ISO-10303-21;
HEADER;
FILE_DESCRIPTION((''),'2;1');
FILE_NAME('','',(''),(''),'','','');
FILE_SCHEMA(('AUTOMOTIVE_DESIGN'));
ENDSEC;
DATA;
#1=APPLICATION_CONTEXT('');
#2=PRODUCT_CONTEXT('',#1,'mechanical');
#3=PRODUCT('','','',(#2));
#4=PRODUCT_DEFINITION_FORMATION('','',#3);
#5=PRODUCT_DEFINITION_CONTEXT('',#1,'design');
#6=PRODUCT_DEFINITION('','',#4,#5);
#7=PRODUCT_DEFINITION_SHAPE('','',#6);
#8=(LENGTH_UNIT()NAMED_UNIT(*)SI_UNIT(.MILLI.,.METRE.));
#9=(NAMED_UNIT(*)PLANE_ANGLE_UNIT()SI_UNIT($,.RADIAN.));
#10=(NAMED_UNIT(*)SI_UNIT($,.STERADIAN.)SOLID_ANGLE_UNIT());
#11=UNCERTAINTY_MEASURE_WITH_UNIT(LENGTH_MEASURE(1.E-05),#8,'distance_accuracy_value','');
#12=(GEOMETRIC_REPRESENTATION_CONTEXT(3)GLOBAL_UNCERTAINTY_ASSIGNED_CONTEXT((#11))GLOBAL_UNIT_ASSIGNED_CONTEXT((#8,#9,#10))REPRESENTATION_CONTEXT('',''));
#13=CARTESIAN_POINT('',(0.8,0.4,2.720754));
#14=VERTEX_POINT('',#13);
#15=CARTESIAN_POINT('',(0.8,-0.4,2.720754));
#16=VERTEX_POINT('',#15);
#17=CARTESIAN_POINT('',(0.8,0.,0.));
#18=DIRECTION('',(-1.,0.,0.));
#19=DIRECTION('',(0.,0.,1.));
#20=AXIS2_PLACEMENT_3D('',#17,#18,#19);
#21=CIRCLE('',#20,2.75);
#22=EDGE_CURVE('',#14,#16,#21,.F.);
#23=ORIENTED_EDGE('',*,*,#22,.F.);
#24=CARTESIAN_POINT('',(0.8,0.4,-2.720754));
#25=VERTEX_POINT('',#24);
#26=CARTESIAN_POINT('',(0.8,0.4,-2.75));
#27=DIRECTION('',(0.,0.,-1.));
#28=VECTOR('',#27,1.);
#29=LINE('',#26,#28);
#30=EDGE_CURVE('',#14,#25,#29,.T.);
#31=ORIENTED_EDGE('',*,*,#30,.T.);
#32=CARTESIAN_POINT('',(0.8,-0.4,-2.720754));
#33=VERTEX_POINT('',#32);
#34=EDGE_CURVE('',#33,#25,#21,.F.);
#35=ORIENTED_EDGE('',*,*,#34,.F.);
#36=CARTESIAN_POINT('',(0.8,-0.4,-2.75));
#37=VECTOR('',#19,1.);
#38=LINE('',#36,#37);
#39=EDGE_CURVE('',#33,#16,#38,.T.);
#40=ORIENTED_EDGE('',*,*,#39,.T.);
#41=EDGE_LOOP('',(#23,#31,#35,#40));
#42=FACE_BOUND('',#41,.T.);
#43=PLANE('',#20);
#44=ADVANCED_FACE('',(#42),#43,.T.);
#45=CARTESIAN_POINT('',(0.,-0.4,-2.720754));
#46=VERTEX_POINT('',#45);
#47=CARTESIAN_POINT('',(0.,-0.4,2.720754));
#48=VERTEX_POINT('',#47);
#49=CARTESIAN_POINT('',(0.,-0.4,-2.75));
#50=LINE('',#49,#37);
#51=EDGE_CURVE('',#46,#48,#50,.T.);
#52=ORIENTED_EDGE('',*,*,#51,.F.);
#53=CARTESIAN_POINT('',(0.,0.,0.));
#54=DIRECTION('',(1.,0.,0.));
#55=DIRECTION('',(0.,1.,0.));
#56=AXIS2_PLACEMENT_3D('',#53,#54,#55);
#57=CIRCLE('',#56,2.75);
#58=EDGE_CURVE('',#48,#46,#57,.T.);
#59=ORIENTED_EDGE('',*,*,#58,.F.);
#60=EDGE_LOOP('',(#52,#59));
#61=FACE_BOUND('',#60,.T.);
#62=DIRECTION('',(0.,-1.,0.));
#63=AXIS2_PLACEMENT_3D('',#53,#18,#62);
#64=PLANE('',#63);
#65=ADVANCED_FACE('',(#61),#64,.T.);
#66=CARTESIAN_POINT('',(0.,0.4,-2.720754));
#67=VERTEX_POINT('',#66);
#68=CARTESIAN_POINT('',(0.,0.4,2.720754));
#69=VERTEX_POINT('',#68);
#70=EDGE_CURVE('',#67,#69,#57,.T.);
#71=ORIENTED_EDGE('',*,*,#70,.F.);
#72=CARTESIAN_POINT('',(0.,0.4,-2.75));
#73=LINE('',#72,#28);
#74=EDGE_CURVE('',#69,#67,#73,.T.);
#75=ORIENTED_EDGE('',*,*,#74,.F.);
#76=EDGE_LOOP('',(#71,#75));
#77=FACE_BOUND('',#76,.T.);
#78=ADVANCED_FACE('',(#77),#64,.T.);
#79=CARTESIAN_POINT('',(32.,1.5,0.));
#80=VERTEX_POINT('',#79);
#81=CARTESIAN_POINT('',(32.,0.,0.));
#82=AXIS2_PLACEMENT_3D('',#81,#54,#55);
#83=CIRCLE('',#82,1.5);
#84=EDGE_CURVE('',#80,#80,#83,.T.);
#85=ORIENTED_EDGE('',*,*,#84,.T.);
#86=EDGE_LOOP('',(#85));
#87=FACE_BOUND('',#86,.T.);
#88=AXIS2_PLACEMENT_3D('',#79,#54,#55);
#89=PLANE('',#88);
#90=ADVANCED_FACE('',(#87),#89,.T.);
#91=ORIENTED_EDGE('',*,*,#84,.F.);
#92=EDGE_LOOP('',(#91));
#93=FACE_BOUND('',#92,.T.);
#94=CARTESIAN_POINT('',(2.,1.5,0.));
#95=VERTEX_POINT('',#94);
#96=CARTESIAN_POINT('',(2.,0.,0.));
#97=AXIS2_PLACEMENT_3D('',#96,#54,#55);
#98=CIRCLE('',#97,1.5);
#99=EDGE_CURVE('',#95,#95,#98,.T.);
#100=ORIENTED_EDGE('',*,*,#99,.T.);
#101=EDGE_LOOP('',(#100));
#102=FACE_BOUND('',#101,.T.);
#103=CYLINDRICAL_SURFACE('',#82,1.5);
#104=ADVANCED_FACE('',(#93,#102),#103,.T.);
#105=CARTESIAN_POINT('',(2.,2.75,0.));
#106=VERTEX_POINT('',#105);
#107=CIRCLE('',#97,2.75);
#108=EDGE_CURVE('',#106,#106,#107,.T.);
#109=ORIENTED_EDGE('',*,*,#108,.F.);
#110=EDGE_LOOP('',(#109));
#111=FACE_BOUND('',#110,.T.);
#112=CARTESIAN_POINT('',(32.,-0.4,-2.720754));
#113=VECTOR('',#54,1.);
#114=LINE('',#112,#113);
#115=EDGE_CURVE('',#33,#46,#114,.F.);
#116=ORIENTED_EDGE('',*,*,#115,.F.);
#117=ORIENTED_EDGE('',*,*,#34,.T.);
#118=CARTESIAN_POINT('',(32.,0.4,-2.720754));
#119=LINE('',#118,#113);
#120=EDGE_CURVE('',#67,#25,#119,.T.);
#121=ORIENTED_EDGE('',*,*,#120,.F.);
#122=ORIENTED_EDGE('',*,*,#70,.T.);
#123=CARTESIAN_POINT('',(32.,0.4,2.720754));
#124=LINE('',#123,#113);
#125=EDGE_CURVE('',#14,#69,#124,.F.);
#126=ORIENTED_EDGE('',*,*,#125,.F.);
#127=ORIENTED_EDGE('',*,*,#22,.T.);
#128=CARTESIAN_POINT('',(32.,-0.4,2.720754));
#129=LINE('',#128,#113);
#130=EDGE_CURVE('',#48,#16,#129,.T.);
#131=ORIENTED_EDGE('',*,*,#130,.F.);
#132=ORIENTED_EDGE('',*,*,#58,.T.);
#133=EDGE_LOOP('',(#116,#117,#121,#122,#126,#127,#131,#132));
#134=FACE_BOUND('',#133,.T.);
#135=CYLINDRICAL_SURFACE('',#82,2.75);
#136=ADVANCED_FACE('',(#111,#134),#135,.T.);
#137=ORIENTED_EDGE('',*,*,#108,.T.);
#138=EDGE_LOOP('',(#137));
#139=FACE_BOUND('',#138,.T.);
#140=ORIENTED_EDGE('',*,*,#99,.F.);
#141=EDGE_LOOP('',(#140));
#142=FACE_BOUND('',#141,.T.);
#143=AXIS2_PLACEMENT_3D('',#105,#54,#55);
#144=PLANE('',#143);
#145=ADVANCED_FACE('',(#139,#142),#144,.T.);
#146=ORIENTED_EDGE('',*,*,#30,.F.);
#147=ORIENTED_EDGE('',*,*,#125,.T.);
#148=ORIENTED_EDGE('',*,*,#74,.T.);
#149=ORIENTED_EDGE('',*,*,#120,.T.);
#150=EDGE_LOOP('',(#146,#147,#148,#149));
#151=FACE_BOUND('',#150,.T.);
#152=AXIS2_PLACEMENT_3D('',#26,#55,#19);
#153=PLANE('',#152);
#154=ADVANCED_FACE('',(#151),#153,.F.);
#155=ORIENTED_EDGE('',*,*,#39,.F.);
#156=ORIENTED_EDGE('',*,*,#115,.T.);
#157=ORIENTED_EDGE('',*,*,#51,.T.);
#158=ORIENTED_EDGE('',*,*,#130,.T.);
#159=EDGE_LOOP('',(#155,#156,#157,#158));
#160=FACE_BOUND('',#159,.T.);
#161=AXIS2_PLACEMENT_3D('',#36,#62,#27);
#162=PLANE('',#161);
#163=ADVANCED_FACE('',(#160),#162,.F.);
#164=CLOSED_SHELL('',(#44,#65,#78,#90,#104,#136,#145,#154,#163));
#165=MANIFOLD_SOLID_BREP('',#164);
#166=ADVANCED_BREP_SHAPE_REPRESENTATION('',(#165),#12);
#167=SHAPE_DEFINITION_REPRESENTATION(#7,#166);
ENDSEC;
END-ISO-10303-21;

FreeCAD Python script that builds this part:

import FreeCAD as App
import Part
import Sketcher

doc = App.newDocument("Part")
body = doc.addObject("PartDesign::Body", "Body")

# Sketch on XY plane
sketch1 = doc.addObject("Sketcher::SketchObject", "Sketch")
body.addObject(sketch1)
sketch1.AttachmentSupport = (doc.XY_Plane, [""])
sketch1.MapMode = "FlatFace"
sketch1.addGeometry(Part.LineSegment(App.Vector(0, 2.8, 0), App.Vector(0, 0, 0)), False)
sketch1.addGeometry(Part.LineSegment(App.Vector(0, 0, 0), App.Vector(32, 0, 0)), False)
sketch1.addGeometry(Part.LineSegment(App.Vector(32, 0, 0), App.Vector(32, 1.5, 0)), False)
sketch1.addGeometry(Part.LineSegment(App.Vector(32, 1.5, 0), App.Vector(2, 1.5, 0)), False)
sketch1.addGeometry(Part.LineSegment(App.Vector(2, 1.5, 0), App.Vector(2, 2.8, 0)), False)
sketch1.addGeometry(Part.LineSegment(App.Vector(2, 2.8, 0), App.Vector(0, 2.8, 0)), False)
sketch1.addConstraint(Sketcher.Constraint("Coincident", 0, 2, 1, 1))
sketch1.addConstraint(Sketcher.Constraint("Coincident", 1, 2, 2, 1))
sketch1.addConstraint(Sketcher.Constraint("Coincident", 2, 2, 3, 1))
sketch1.addConstraint(Sketcher.Constraint("Coincident", 3, 2, 4, 1))
sketch1.addConstraint(Sketcher.Constraint("Coincident", 4, 2, 5, 1))
sketch1.addConstraint(Sketcher.Constraint("Coincident", 5, 2, 0, 1))
sketch1.addConstraint(Sketcher.Constraint("Vertical", 0))
sketch1.addConstraint(Sketcher.Constraint("Horizontal", 1))
sketch1.addConstraint(Sketcher.Constraint("Vertical", 2))
sketch1.addConstraint(Sketcher.Constraint("Horizontal", 3))
sketch1.addConstraint(Sketcher.Constraint("Vertical", 4))
sketch1.addConstraint(Sketcher.Constraint("Horizontal", 5))
sketch1.addConstraint(Sketcher.Constraint("Coincident", 0, 2, -1, 1))
sketch1.addConstraint(Sketcher.Constraint("DistanceX", 1, 1, 1, 2, 32.0))
sketch1.addConstraint(Sketcher.Constraint("DistanceX", 3, 2, 3, 1, 30.0))
sketch1.addConstraint(Sketcher.Constraint("DistanceY", 2, 1, 2, 2, 1.5))
sketch1.addConstraint(Sketcher.Constraint("DistanceY", 0, 2, 0, 1, 2.75))
revolution = doc.addObject("PartDesign::Revolution", "Revolution")
body.addObject(revolution)
revolution.Profile = sketch1
revolution.ReferenceAxis = (sketch1, ["H_Axis"])
revolution.Angle = 360

# Sketch on YZ plane
sketch2 = doc.addObject("Sketcher::SketchObject", "Sketch001")
body.addObject(sketch2)
sketch2.AttachmentSupport = (doc.YZ_Plane, [""])
sketch2.MapMode = "FlatFace"
sketch2.addGeometry(Part.LineSegment(App.Vector(0.4, -2.8, 0), App.Vector(-0.4, -2.8, 0)), False)
sketch2.addGeometry(Part.LineSegment(App.Vector(-0.4, -2.8, 0), App.Vector(-0.4, 2.8, 0)), False)
sketch2.addGeometry(Part.LineSegment(App.Vector(-0.4, 2.8, 0), App.Vector(0.4, 2.8, 0)), False)
sketch2.addGeometry(Part.LineSegment(App.Vector(0.4, 2.8, 0), App.Vector(0.4, -2.8, 0)), False)
sketch2.addConstraint(Sketcher.Constraint("Coincident", 0, 2, 1, 1))
sketch2.addConstraint(Sketcher.Constraint("Coincident", 1, 2, 2, 1))
sketch2.addConstraint(Sketcher.Constraint("Coincident", 2, 2, 3, 1))
sketch2.addConstraint(Sketcher.Constraint("Coincident", 3, 2, 0, 1))
sketch2.addConstraint(Sketcher.Constraint("Horizontal", 0))
sketch2.addConstraint(Sketcher.Constraint("Vertical", 1))
sketch2.addConstraint(Sketcher.Constraint("Horizontal", 2))
sketch2.addConstraint(Sketcher.Constraint("Vertical", 3))
sketch2.addConstraint(Sketcher.Constraint("Symmetric", 0, 2, 2, 2, -1, 1))
sketch2.addConstraint(Sketcher.Constraint("DistanceX", 0, 2, 0, 1, 0.8))
sketch2.addConstraint(Sketcher.Constraint("DistanceY", 1, 1, 1, 2, 5.5))
pocket1 = doc.addObject("PartDesign::Pocket", "Pocket")
body.addObject(pocket1)
pocket1.Profile = sketch2
pocket1.Length = 0.8
pocket1.Reversed = True

doc.recompute()
